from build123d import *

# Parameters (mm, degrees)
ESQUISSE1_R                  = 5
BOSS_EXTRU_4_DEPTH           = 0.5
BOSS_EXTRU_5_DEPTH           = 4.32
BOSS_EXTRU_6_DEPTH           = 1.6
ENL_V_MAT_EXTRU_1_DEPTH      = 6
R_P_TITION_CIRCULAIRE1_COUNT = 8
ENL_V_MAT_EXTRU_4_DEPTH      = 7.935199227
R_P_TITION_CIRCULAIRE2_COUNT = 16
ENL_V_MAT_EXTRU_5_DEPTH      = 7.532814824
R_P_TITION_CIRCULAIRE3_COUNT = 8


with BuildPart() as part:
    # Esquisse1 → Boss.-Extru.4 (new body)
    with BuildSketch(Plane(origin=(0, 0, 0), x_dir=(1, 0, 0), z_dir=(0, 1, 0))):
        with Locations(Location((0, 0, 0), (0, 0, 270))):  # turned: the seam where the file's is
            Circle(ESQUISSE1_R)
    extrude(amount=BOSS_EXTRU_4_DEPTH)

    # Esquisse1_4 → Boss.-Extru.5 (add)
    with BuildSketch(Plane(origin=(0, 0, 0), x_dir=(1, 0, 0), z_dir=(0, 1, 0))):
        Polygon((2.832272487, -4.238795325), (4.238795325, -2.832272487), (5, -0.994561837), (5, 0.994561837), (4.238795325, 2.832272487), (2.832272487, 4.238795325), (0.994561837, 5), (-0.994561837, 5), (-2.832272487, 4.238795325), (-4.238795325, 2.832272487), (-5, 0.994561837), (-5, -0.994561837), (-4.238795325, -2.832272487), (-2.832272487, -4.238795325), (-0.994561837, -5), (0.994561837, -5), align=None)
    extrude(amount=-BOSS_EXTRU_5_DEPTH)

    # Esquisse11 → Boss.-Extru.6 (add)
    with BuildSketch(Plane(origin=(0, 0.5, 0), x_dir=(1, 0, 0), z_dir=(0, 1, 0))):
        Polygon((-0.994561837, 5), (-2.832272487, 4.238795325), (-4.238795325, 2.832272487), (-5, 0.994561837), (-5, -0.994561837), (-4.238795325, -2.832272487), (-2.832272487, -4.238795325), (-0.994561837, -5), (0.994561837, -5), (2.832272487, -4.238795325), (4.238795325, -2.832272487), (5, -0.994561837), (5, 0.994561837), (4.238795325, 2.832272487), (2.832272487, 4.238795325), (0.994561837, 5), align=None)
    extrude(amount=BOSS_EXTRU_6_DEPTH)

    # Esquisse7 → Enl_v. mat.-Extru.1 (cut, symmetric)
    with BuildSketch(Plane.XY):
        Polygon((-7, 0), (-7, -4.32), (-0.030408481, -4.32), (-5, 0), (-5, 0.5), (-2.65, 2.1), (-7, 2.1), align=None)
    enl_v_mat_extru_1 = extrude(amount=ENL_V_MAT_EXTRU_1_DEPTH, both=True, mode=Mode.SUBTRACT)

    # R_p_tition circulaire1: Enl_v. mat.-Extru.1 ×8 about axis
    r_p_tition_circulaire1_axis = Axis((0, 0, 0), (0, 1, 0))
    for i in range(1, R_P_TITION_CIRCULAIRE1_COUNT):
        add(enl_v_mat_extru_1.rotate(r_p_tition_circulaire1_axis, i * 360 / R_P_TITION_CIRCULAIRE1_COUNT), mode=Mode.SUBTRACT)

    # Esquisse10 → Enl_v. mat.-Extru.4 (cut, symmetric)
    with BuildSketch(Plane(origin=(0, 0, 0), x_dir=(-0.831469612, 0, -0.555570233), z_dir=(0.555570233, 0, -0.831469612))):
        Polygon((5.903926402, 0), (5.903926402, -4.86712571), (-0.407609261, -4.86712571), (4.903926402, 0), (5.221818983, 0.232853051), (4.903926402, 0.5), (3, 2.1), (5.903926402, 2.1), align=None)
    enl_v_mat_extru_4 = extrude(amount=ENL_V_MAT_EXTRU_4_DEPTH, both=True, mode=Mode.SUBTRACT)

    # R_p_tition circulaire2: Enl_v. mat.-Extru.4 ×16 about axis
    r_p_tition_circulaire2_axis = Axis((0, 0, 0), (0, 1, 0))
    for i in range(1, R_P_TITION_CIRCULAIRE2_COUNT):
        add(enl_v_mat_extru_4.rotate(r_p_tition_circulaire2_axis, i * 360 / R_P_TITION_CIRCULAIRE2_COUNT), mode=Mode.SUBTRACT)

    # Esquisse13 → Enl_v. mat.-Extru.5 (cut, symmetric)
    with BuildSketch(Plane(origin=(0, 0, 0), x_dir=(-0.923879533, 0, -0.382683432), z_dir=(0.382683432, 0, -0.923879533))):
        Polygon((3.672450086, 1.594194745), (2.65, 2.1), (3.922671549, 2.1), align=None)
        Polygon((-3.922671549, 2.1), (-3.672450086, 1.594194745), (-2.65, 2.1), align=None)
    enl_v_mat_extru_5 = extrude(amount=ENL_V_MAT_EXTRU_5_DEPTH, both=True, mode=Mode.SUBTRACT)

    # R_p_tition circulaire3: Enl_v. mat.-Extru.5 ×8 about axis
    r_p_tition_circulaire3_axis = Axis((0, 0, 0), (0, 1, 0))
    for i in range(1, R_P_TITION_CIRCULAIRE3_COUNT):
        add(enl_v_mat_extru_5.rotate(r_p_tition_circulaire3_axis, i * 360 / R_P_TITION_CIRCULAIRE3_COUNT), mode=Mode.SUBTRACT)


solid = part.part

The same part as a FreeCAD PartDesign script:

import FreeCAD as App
import Part
import Sketcher
Q = App.Units.Quantity


def add_polygon(sketch, points):
    """Adds a closed chain of lines whose ends are joined by coincident constraints."""
    first, n = sketch.GeometryCount, len(points)
    for a, b in zip(points, points[1:] + points[:1]):
        sketch.addGeometry(Part.LineSegment(App.Vector(*a, 0), App.Vector(*b, 0)), False)
    for i in range(n):
        sketch.addConstraint(Sketcher.Constraint("Coincident", first + i, 2, first + (i + 1) % n, 1))

doc = App.newDocument("Part")
body = doc.addObject("PartDesign::Body", "Body")

sketch1 = body.newObject("Sketcher::SketchObject", "Sketch")
sketch1.AttachmentSupport = (doc.getObject("XZ_Plane"), [""])
sketch1.MapMode = "FlatFace"
sketch1.addGeometry(Part.Circle(App.Vector(0, 0, 0), App.Vector(0, 0, 1), 5), False)
sketch1.addConstraint([
    Sketcher.Constraint("Coincident", 0, 3, -1, 1),
    Sketcher.Constraint("Diameter", 0, 10.0),
])
pad1 = body.newObject("PartDesign::Pad", "Pad")
pad1.Profile = sketch1
pad1.Length = 0.5
pad1.Reversed = True

sketch2 = body.newObject("Sketcher::SketchObject", "Sketch001")
sketch2.AttachmentSupport = (doc.getObject("XZ_Plane"), [""])
sketch2.MapMode = "FlatFace"
add_polygon(sketch2, [(2.832272, 4.238795), (4.238795, 2.832272), (5, 0.994562), (5, -0.994562), (4.238795, -2.832272), (2.832272, -4.238795), (0.994562, -5), (-0.994562, -5), (-2.832272, -4.238795), (-4.238795, -2.832272), (-5, -0.994562), (-5, 0.994562), (-4.238795, 2.832272), (-2.832272, 4.238795), (-0.994562, 5), (0.994562, 5)])
sketch2.addConstraint([
    Sketcher.Constraint("Vertical", 2),
    Sketcher.Constraint("Horizontal", 6),
    Sketcher.Constraint("Vertical", 10),
    Sketcher.Constraint("Horizontal", 14),
    Sketcher.Constraint("Symmetric", 0, 2, 8, 2, -1, 1),
    Sketcher.Constraint("Symmetric", 1, 2, 9, 2, -1, 1),
    Sketcher.Constraint("Symmetric", 3, 2, 11, 2, -1, 1),
    Sketcher.Constraint("Symmetric", 4, 2, 12, 2, -1, 1),
    Sketcher.Constraint("Symmetric", 5, 2, 13, 2, -1, 1),
    Sketcher.Constraint("Symmetric", 7, 2, 15, 2, -1, 1),
    Sketcher.Constraint("Symmetric", 4, 2, 7, 2, -2),
    Sketcher.Constraint("Symmetric", 3, 2, 8, 2, -2),
    Sketcher.Constraint("Perpendicular", 0, 4),
    Sketcher.Constraint("Perpendicular", 1, 5),
    Sketcher.Constraint("Perpendicular", 3, 7),
    Sketcher.Constraint("Perpendicular", 7, 11),
    Sketcher.Constraint("Perpendicular", 11, 15),
    Sketcher.Constraint("Horizontal", 2, 2, 9, 2),
    Sketcher.Constraint("Equal", 14, 2),
    Sketcher.Constraint("Equal", 0, 1),
    Sketcher.Constraint("Equal", 4, 5),
    Sketcher.Constraint("DistanceX", -1, 1, 1, 2, 5.0),
    Sketcher.Constraint("Angle", 1, Q("-67.5 deg")),
    Sketcher.Constraint("DistanceX", 6, 2, 6, 1, 1.989124),
])
pad2 = body.newObject("PartDesign::Pad", "Pad001")
pad2.Profile = sketch2
pad2.Length = 4.32

sketch3 = body.newObject("Sketcher::SketchObject", "Sketch002")
sketch3.AttachmentSupport = (doc.getObject("XZ_Plane"), [""])
sketch3.MapMode = "FlatFace"
sketch3.AttachmentOffset = App.Placement(App.Vector(0, 0, -0.5), App.Rotation())
add_polygon(sketch3, [(-0.994562, -5), (-2.832272, -4.238795), (-4.238795, -2.832272), (-5, -0.994562), (-5, 0.994562), (-4.238795, 2.832272), (-2.832272, 4.238795), (-0.994562, 5), (0.994562, 5), (2.832272, 4.238795), (4.238795, 2.832272), (5, 0.994562), (5, -0.994562), (4.238795, -2.832272), (2.832272, -4.238795), (0.994562, -5)])
sketch3.addConstraint([
    Sketcher.Constraint("Vertical", 3),
    Sketcher.Constraint("Horizontal", 7),
    Sketcher.Constraint("Vertical", 11),
    Sketcher.Constraint("Horizontal", 15),
    Sketcher.Constraint("Symmetric", 0, 2, 8, 2, -1, 1),
    Sketcher.Constraint("Symmetric", 1, 2, 9, 2, -1, 1),
    Sketcher.Constraint("Symmetric", 2, 2, 10, 2, -1, 1),
    Sketcher.Constraint("Symmetric", 4, 2, 12, 2, -1, 1),
    Sketcher.Constraint("Symmetric", 5, 2, 13, 2, -1, 1),
    Sketcher.Constraint("Symmetric", 6, 2, 14, 2, -1, 1),
    Sketcher.Constraint("Symmetric", 5, 2, 8, 2, -2),
    Sketcher.Constraint("Symmetric", 4, 2, 9, 2, -2),
    Sketcher.Constraint("Perpendicular", 0, 4),
    Sketcher.Constraint("Perpendicular", 1, 5),
    Sketcher.Constraint("Perpendicular", 2, 6),
    Sketcher.Constraint("Perpendicular", 4, 8),
    Sketcher.Constraint("Perpendicular", 8, 12),
    Sketcher.Constraint("Horizontal", 3, 2, 10, 2),
    Sketcher.Constraint("Equal", 15, 3),
    Sketcher.Constraint("Equal", 0, 1),
    Sketcher.Constraint("Equal", 1, 2),
    Sketcher.Constraint("DistanceX", 2, 2, -1, 1, 5.0),
    Sketcher.Constraint("Angle", 0, Q("157.5 deg")),
    Sketcher.Constraint("DistanceX", 7, 1, 7, 2, 1.989124),
])
pad3 = body.newObject("PartDesign::Pad", "Pad002")
pad3.Profile = sketch3
pad3.Length = 1.6
pad3.Reversed = True

sketch4 = body.newObject("Sketcher::SketchObject", "Sketch003")
sketch4.AttachmentSupport = (doc.getObject("XY_Plane"), [""])
sketch4.MapMode = "FlatFace"
add_polygon(sketch4, [(-7, -4.32), (-0.030408, -4.32), (-5, 0), (-5, 0.5), (-2.65, 2.1), (-7, 2.1)])
sketch4.addConstraint([
    Sketcher.Constraint("Horizontal", 0),
    Sketcher.Constraint("Vertical", 2),
    Sketcher.Constraint("Horizontal", 4),
    Sketcher.Constraint("Vertical", 5),
    Sketcher.Constraint("PointOnObject", 1, 2, -1),
    Sketcher.Constraint("Angle", 1, Q("139 deg")),
    Sketcher.Constraint("DistanceY", 2, 1, 2, 2, 0.5),
    Sketcher.Constraint("DistanceX", 1, 2, -1, 1, 5.0),
    Sketcher.Constraint("DistanceX", 4, 2, -1, 1, 7.0),
    Sketcher.Constraint("DistanceX", 4, 2, 4, 1, 4.35),
    Sketcher.Constraint("DistanceY", 5, 2, 5, 1, 6.42),
    Sketcher.Constraint("DistanceY", -1, 1, 3, 2, 2.1),
])
pocket1 = body.newObject("PartDesign::Pocket", "Pocket")
pocket1.Profile = sketch4
pocket1.Length = 12
pocket1.Midplane = True
doc.recompute()

polarpattern = body.newObject("PartDesign::PolarPattern", "PolarPattern")
polarpattern.Originals = [pocket1]
polarpattern.Axis = (doc.getObject("Y_Axis"), [""])
polarpattern.Angle = 360
polarpattern.Occurrences = 8
body.Tip = polarpattern

sketch5 = body.newObject("Sketcher::SketchObject", "Sketch004")
sketch5.Placement = App.Placement(App.Vector(0, 0, 0), App.Rotation(App.Vector(-0.831469612, 0, -0.555570233), App.Vector(0, 0.999999999, 0), App.Vector(0.555570233, 0, -0.831469612), "ZXY"))
add_polygon(sketch5, [(5.903926, -4.867126), (5.903926, 2.1), (3, 2.1), (4.903926, 0.5), (5.221819, 0.232853), (4.903926, 0), (-0.407609, -4.867126)])
sketch5.addConstraint([
    Sketcher.Constraint("Vertical", 0),
    Sketcher.Constraint("Horizontal", 1),
    Sketcher.Constraint("Horizontal", 6),
    Sketcher.Constraint("PointOnObject", 4, 2, -1),
    Sketcher.Constraint("Parallel", 2, 3),
    Sketcher.Constraint("Vertical", 2, 2, 4, 2),
    Sketcher.Constraint("DistanceX", -1, 1, 1, 2, 3.0),
    Sketcher.Constraint("Angle", 5, Q("-137.5 deg")),
    Sketcher.Constraint("DistanceX", 2, 2, 0, 2, 1.0),
    Sketcher.Constraint("DistanceY", -1, 1, 0, 2, 2.1),
    Sketcher.Constraint("DistanceY", -1, 1, 2, 2, 0.5),
    Sketcher.Constraint("Distance", 3, 0.415239),
    Sketcher.Constraint("Distance", 4, 0.394051),
    Sketcher.Constraint("DistanceX", 6, 1, 6, 2, 6.311536),
])
pocket2 = body.newObject("PartDesign::Pocket", "Pocket001")
pocket2.Profile = sketch5
pocket2.Length = 15.870398
pocket2.Midplane = True
doc.recompute()

polarpattern2 = body.newObject("PartDesign::PolarPattern", "PolarPattern001")
polarpattern2.Originals = [pocket2]
polarpattern2.Axis = (doc.getObject("Y_Axis"), [""])
polarpattern2.Angle = 360
polarpattern2.Occurrences = 16
body.Tip = polarpattern2

sketch6 = body.newObject("Sketcher::SketchObject", "Sketch005")
sketch6.Placement = App.Placement(App.Vector(0, 0, 0), App.Rotation(App.Vector(-0.923879533, 0, -0.382683432), App.Vector(0, 1.000000001, 0), App.Vector(0.382683432, 0, -0.923879533), "ZXY"))
add_polygon(sketch6, [(2.65, 2.1), (3.67245, 1.594195), (3.922672, 2.1)])
add_polygon(sketch6, [(-3.922672, 2.1), (-3.67245, 1.594195), (-2.65, 2.1)])
sketch6.addConstraint([
    Sketcher.Constraint("Horizontal", 2),
    Sketcher.Constraint("Horizontal", 5),
    Sketcher.Constraint("Symmetric", 0, 2, 3, 2, -2),
    Sketcher.Constraint("Symmetric", 2, 2, 4, 2, -2),
    Sketcher.Constraint("Perpendicular", 0, 1),
    Sketcher.Constraint("Perpendicular", 3, 4),
    Sketcher.Constraint("DistanceY", -1, 1, 1, 2, 2.1),
    Sketcher.Constraint("DistanceX", 4, 2, 2, 2, 5.3),
    Sketcher.Constraint("DistanceX", 2, 2, 2, 1, 1.272672),
    Sketcher.Constraint("DistanceX", 3, 2, 0, 2, 7.3449),
])
pocket3 = body.newObject("PartDesign::Pocket", "Pocket002")
pocket3.Profile = sketch6
pocket3.Length = 15.06563
pocket3.Midplane = True
doc.recompute()

polarpattern3 = body.newObject("PartDesign::PolarPattern", "PolarPattern002")
polarpattern3.Originals = [pocket3]
polarpattern3.Axis = (doc.getObject("Y_Axis"), [""])
polarpattern3.Angle = 360
polarpattern3.Occurrences = 8
body.Tip = polarpattern3

doc.recompute()
